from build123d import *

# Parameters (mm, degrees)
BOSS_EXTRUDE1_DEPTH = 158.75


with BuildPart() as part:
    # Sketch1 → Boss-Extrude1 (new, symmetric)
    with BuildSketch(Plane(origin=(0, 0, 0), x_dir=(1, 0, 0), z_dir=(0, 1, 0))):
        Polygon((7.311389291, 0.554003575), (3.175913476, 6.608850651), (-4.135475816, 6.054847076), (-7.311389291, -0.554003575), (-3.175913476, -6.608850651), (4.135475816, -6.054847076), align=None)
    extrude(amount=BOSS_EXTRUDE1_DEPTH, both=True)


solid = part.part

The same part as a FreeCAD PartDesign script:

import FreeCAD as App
import Part
import Sketcher

V = App.Vector
Q = App.Units.Quantity

doc = App.newDocument("Part")
body = doc.addObject("PartDesign::Body", "Body")

sketch1 = body.newObject("Sketcher::SketchObject", "Sketch")
sketch1.AttachmentSupport = (doc.getObject("XZ_Plane"), [""])
sketch1.MapMode = "FlatFace"
sketch1.addGeometry([
    Part.LineSegment(V(7.311389, -0.554004, 0), V(3.175913, -6.608851, 0)),
    Part.LineSegment(V(3.175913, -6.608851, 0), V(-4.135476, -6.054847, 0)),
    Part.LineSegment(V(-4.135476, -6.054847, 0), V(-7.311389, 0.554004, 0)),
    Part.LineSegment(V(-7.311389, 0.554004, 0), V(-3.175913, 6.608851, 0)),
    Part.LineSegment(V(-3.175913, 6.608851, 0), V(4.135476, 6.054847, 0)),
    Part.LineSegment(V(4.135476, 6.054847, 0), V(7.311389, -0.554004, 0)),
], False)
sketch1.addConstraint([
    Sketcher.Constraint("Coincident", 0, 2, 1, 1),
    Sketcher.Constraint("Coincident", 1, 2, 2, 1),
    Sketcher.Constraint("Coincident", 2, 2, 3, 1),
    Sketcher.Constraint("Coincident", 3, 2, 4, 1),
    Sketcher.Constraint("Coincident", 4, 2, 5, 1),
    Sketcher.Constraint("Coincident", 5, 2, 0, 1),
    Sketcher.Constraint("Symmetric", 0, 2, 3, 2, -1, 1),
    Sketcher.Constraint("Symmetric", 1, 2, 4, 2, -1, 1),
    Sketcher.Constraint("Symmetric", 2, 2, 5, 2, -1, 1),
    Sketcher.Constraint("Equal", 0, 1),
    Sketcher.Constraint("Equal", 1, 2),
    Sketcher.Constraint("DistanceX", 2, 2, 5, 2, Q("0.5756999 in")),
    Sketcher.Constraint("DistanceY", 0, 2, 3, 2, Q("13.217701 mm")),
    Sketcher.Constraint("Distance", 0, Q("7.332348 mm")),
    Sketcher.Constraint("DistanceX", 1, 2, 0, 2, Q("7.311389 mm")),
])
pad1 = body.newObject("PartDesign::Pad", "Pad")
pad1.Profile = sketch1
pad1.Length = Q("12.5 in")
pad1.Midplane = True

doc.recompute()
